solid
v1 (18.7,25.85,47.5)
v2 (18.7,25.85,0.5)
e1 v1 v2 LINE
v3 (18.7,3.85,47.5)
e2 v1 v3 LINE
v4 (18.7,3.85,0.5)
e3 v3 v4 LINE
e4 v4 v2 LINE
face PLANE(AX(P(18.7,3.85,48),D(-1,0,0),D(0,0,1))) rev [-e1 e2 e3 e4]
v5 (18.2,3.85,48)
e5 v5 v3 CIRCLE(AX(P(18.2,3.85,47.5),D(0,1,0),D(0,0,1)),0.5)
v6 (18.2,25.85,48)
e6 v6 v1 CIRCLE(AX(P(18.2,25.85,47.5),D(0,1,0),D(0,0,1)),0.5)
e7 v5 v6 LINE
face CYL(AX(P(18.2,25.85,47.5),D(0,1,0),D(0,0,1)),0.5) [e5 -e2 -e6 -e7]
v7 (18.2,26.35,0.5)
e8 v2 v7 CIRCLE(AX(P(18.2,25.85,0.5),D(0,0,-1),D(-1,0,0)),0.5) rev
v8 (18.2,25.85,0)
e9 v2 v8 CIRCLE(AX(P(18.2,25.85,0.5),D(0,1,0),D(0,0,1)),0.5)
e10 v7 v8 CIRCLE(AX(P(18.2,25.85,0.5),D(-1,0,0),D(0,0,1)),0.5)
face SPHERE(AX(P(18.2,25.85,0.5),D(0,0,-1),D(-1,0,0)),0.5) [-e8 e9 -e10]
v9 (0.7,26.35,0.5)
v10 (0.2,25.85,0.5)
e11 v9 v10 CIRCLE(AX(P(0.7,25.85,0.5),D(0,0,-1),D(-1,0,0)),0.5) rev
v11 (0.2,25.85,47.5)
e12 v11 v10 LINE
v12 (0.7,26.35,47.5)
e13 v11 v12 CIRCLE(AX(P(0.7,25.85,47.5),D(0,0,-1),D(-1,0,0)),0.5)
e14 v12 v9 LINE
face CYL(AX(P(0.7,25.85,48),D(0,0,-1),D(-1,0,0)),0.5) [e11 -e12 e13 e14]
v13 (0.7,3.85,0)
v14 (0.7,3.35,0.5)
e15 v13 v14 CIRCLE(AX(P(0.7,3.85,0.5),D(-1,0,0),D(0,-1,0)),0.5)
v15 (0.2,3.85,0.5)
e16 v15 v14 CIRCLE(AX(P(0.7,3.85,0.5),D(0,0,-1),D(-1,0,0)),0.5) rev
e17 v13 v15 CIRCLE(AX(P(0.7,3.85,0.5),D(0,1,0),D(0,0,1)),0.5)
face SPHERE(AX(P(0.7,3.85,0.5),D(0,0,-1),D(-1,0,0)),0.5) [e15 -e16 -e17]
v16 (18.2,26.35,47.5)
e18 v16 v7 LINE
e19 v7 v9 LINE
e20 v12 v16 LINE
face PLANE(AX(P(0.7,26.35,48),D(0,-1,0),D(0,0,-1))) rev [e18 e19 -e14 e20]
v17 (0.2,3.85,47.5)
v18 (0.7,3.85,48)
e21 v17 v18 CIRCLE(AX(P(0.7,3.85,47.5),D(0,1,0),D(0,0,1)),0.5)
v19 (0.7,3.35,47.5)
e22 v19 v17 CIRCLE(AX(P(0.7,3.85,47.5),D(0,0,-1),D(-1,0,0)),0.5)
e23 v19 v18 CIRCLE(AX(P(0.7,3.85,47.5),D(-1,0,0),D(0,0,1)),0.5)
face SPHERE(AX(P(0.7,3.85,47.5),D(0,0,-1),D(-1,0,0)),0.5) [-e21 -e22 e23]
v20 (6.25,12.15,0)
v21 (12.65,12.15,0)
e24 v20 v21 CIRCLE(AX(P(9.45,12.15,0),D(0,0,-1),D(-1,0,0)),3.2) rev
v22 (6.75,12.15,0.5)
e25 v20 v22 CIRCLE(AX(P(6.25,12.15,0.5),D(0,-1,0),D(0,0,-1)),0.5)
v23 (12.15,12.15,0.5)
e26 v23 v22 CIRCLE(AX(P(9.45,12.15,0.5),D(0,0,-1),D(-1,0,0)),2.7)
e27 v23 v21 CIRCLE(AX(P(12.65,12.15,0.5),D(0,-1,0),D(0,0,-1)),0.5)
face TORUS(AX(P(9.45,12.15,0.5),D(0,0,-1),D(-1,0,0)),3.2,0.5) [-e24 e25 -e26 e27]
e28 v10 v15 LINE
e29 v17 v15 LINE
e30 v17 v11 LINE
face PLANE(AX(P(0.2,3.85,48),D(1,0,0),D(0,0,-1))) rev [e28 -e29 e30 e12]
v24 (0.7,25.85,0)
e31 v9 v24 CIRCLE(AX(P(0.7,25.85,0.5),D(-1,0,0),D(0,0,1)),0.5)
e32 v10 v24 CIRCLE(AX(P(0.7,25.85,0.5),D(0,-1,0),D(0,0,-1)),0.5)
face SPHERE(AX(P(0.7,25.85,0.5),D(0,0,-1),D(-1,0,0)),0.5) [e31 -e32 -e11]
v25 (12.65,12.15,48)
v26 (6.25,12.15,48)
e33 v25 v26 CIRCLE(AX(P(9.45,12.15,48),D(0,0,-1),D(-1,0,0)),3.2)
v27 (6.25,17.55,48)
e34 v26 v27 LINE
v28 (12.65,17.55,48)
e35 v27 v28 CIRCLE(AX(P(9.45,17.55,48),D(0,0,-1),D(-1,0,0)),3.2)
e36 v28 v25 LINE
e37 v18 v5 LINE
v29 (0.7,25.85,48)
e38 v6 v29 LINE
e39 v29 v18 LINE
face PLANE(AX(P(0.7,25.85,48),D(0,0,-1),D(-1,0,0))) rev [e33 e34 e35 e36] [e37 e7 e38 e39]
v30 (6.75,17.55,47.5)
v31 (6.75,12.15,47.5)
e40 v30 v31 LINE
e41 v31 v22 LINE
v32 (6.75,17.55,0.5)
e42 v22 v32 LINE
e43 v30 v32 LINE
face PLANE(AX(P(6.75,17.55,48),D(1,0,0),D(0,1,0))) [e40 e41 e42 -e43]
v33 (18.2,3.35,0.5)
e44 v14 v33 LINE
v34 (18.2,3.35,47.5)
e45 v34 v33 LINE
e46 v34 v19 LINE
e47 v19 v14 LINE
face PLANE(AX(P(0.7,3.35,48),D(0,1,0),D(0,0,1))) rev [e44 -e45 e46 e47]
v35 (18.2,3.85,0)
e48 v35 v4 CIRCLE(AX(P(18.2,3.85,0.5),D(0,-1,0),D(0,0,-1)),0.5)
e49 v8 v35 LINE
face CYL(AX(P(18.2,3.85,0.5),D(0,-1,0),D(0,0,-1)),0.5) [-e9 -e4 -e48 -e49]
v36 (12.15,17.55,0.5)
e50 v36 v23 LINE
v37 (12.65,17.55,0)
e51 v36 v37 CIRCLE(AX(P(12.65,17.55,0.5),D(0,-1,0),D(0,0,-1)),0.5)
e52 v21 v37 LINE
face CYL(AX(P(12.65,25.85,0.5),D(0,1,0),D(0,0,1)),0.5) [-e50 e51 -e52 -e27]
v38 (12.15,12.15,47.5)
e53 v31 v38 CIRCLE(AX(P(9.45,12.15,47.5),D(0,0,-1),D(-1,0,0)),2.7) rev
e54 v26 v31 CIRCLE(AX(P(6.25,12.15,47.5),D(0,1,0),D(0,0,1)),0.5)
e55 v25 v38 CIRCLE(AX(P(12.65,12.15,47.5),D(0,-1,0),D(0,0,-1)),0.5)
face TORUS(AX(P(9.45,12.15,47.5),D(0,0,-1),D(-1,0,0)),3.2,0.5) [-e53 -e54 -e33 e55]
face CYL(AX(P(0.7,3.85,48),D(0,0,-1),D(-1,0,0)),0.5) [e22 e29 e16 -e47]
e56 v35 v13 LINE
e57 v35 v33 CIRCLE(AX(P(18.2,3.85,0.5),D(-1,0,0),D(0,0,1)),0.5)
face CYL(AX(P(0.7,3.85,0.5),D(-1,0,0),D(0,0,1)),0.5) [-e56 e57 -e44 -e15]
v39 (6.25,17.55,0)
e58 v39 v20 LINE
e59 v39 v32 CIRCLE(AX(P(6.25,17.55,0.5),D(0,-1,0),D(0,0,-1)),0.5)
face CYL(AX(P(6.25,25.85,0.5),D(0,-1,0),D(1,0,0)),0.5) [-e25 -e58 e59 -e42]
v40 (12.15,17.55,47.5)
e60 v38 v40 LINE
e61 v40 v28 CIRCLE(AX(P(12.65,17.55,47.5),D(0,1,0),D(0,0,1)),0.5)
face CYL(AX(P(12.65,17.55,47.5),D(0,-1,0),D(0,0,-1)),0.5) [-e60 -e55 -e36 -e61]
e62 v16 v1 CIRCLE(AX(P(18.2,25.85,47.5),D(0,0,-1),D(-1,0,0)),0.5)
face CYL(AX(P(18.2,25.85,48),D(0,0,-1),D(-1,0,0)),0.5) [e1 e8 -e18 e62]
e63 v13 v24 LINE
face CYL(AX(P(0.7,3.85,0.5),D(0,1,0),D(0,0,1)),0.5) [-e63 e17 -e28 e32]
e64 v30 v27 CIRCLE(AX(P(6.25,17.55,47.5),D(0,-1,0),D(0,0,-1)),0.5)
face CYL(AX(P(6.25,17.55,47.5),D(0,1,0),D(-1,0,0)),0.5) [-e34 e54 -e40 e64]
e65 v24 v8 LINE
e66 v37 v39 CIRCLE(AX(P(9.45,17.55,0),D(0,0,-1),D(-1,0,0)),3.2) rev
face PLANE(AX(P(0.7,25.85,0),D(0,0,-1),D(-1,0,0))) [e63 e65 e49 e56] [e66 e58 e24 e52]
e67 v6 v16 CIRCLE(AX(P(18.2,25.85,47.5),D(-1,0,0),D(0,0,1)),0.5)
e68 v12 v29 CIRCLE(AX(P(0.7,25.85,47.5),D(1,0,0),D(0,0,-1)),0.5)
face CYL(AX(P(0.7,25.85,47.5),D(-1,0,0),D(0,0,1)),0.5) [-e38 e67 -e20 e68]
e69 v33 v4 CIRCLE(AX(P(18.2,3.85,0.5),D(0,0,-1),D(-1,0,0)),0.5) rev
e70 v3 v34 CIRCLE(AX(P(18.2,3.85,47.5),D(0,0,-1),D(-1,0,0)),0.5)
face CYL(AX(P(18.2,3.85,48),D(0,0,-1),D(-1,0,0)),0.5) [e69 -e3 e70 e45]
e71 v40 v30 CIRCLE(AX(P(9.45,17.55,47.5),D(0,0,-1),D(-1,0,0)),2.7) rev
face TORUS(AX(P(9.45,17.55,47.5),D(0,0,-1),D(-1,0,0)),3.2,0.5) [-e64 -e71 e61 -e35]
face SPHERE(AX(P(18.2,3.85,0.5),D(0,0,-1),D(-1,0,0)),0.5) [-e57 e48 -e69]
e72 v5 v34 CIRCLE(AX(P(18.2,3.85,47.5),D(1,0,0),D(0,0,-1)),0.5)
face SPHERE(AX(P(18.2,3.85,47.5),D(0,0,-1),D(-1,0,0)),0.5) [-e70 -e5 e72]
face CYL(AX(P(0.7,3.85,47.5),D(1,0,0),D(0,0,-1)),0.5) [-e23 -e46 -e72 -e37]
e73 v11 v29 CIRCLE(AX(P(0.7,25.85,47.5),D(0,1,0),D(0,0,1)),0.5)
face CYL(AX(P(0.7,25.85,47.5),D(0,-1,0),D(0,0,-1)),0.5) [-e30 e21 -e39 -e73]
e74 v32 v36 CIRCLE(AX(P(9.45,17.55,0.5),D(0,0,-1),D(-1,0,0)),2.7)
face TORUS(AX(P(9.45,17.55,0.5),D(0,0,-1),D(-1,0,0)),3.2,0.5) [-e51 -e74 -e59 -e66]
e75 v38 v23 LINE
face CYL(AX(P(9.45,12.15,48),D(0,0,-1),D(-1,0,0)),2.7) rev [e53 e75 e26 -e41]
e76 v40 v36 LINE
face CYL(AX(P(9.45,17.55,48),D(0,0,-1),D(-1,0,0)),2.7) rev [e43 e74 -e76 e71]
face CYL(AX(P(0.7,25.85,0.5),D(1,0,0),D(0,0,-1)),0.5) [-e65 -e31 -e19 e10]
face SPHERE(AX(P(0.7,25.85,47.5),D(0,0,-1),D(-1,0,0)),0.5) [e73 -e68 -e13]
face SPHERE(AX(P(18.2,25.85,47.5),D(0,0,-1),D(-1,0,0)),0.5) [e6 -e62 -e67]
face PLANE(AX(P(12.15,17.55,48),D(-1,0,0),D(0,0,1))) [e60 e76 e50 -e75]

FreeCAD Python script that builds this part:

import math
import FreeCAD as App
import Part
import Sketcher
Q = App.Units.Quantity


def edges_at(feature, points):
    """Names of the edges that pass closest to the given points."""
    edges = feature.Shape.Edges
    near = lambda p: min(range(len(edges)), key=lambda i: edges[i].distToShape(Part.Vertex(*p))[0])
    return sorted({f"Edge{near(p) + 1}" for p in points})

doc = App.newDocument("Part")
params = doc.addObject("Spreadsheet::Sheet", "Params")
for row, (alias, value) in enumerate([
    ("sketch1_radius", "0.5 mm"),
    ("sketch1_radius2", "2.7 mm"),
    ("sketch1_height", "22 mm"),
    ("sketch1_width", "17.5 mm"),
    ("sketch1_height2", "5.4 mm"),
    ("pad1_length", "48 mm"),
    ("fillet_radius", "0.5 mm"),
    ("fillet2_radius", "0.5 mm"),
], start=1):
    params.set(f"A{row}", alias)
    params.set(f"B{row}", "=" + value)
    params.setAlias(f"B{row}", alias)

body = doc.addObject("PartDesign::Body", "Body")

sketch1 = body.newObject("Sketcher::SketchObject", "Sketch")
sketch1.AttachmentSupport = (doc.getObject("XY_Plane"), [""])
sketch1.MapMode = "FlatFace"
sketch1.addGeometry(Part.LineSegment(App.Vector(0.7, 3.35, 0), App.Vector(18.2, 3.35, 0)), False)
sketch1.addGeometry(Part.ArcOfCircle(Part.Circle(App.Vector(18.2, 3.85, 0), App.Vector(0, 0, 1), 0.5), math.radians(-90), math.radians(0)), False)
sketch1.addGeometry(Part.LineSegment(App.Vector(18.7, 3.85, 0), App.Vector(18.7, 25.85, 0)), False)
sketch1.addGeometry(Part.ArcOfCircle(Part.Circle(App.Vector(18.2, 25.85, 0), App.Vector(0, 0, 1), 0.5), math.radians(0), math.radians(90)), False)
sketch1.addGeometry(Part.LineSegment(App.Vector(18.2, 26.35, 0), App.Vector(0.7, 26.35, 0)), False)
sketch1.addGeometry(Part.ArcOfCircle(Part.Circle(App.Vector(0.7, 25.85, 0), App.Vector(0, 0, 1), 0.5), math.radians(90), math.radians(180)), False)
sketch1.addGeometry(Part.LineSegment(App.Vector(0.2, 25.85, 0), App.Vector(0.2, 3.85, 0)), False)
sketch1.addGeometry(Part.ArcOfCircle(Part.Circle(App.Vector(0.7, 3.85, 0), App.Vector(0, 0, 1), 0.5), math.radians(180), math.radians(270)), False)
sketch1.addGeometry(Part.LineSegment(App.Vector(6.75, 12.15, 0), App.Vector(6.75, 17.55, 0)), False)
sketch1.addGeometry(Part.ArcOfCircle(Part.Circle(App.Vector(9.45, 17.55, 0), App.Vector(0, 0, 1), 2.7), math.radians(0), math.radians(180)), False)
sketch1.addGeometry(Part.LineSegment(App.Vector(12.15, 17.55, 0), App.Vector(12.15, 12.15, 0)), False)
sketch1.addGeometry(Part.ArcOfCircle(Part.Circle(App.Vector(9.45, 12.15, 0), App.Vector(0, 0, 1), 2.7), math.radians(180), math.radians(360)), False)
sketch1.addConstraint(Sketcher.Constraint("Tangent", 0, 2, 1, 1))
sketch1.addConstraint(Sketcher.Constraint("Tangent", 1, 2, 2, 1))
sketch1.addConstraint(Sketcher.Constraint("Tangent", 2, 2, 3, 1))
sketch1.addConstraint(Sketcher.Constraint("Tangent", 3, 2, 4, 1))
sketch1.addConstraint(Sketcher.Constraint("Tangent", 4, 2, 5, 1))
sketch1.addConstraint(Sketcher.Constraint("Tangent", 5, 2, 6, 1))
sketch1.addConstraint(Sketcher.Constraint("Tangent", 6, 2, 7, 1))
sketch1.addConstraint(Sketcher.Constraint("Tangent", 7, 2, 0, 1))
sketch1.addConstraint(Sketcher.Constraint("Tangent", 8, 2, 9, 2))
sketch1.addConstraint(Sketcher.Constraint("Tangent", 9, 1, 10, 1))
sketch1.addConstraint(Sketcher.Constraint("Tangent", 10, 2, 11, 2))
sketch1.addConstraint(Sketcher.Constraint("Tangent", 11, 1, 8, 1))
sketch1.addConstraint(Sketcher.Constraint("Horizontal", 0))
sketch1.addConstraint(Sketcher.Constraint("Vertical", 2))
sketch1.addConstraint(Sketcher.Constraint("Horizontal", 4))
sketch1.addConstraint(Sketcher.Constraint("Vertical", 6))
sketch1.addConstraint(Sketcher.Constraint("Vertical", 8))
sketch1.addConstraint(Sketcher.Constraint("Vertical", 10))
sketch1.addConstraint(Sketcher.Constraint("Equal", 1, 3))
sketch1.addConstraint(Sketcher.Constraint("Equal", 3, 5))
sketch1.addConstraint(Sketcher.Constraint("Equal", 5, 7))
sketch1.addConstraint(Sketcher.Constraint("Radius", 1, Q("0.5 mm")))
sketch1.addConstraint(Sketcher.Constraint("Radius", 9, Q("2.7 mm")))
sketch1.addConstraint(Sketcher.Constraint("DistanceY", 2, 1, 2, 2, Q("22 mm")))
sketch1.addConstraint(Sketcher.Constraint("DistanceX", 0, 1, 0, 2, Q("17.5 mm")))
sketch1.addConstraint(Sketcher.Constraint("DistanceY", 8, 1, 8, 2, Q("5.4 mm")))
sketch1.addConstraint(Sketcher.Constraint("DistanceX", -1, 1, 1, 3, Q("18.2 mm")))
sketch1.addConstraint(Sketcher.Constraint("DistanceY", 9, 3, 3, 3, Q("8.3 mm")))
sketch1.addConstraint(Sketcher.Constraint("DistanceY", -1, 1, 1, 3, Q("3.85 mm")))
sketch1.addConstraint(Sketcher.Constraint("DistanceX", -1, 1, 9, 3, Q("9.45 mm")))
sketch1.setExpression("Constraints[21]", "Params.sketch1_radius")
sketch1.setExpression("Constraints[22]", "Params.sketch1_radius2")
sketch1.setExpression("Constraints[23]", "Params.sketch1_height")
sketch1.setExpression("Constraints[24]", "Params.sketch1_width")
sketch1.setExpression("Constraints[25]", "Params.sketch1_height2")
pad1 = body.newObject("PartDesign::Pad", "Pad")
pad1.Profile = sketch1
pad1.setExpression("Length", "Params.pad1_length")
doc.recompute()

fillet = body.newObject("PartDesign::Fillet", "Fillet")
fillet.Base = (pad1, edges_at(pad1, [
    (9.45, 3.35, 0),
    (0.346, 3.496, 0),
    (0.2, 14.85, 0),
    (0.346, 26.204, 0),
    (9.45, 20.25, 0),
    (6.75, 14.85, 0),
    (9.45, 9.45, 0),
    (12.15, 14.85, 0),
    (9.45, 26.35, 0),
    (18.554, 26.204, 0),
    (18.7, 14.85, 0),
    (18.554, 3.496, 0),
]))
fillet.setExpression("Radius", "Params.fillet_radius")
doc.recompute()

fillet2 = body.newObject("PartDesign::Fillet", "Fillet001")
fillet2.Base = (fillet, edges_at(fillet, [
    (0.346, 3.496, 48),
    (9.45, 3.35, 48),
    (18.554, 3.496, 48),
    (18.7, 14.85, 48),
    (9.45, 20.25, 48),
    (6.75, 14.85, 48),
    (9.45, 9.45, 48),
    (12.15, 14.85, 48),
    (18.554, 26.204, 48),
    (9.45, 26.35, 48),
    (0.346, 26.204, 48),
    (0.2, 14.85, 48),
]))
fillet2.setExpression("Radius", "Params.fillet2_radius")

doc.recompute()
